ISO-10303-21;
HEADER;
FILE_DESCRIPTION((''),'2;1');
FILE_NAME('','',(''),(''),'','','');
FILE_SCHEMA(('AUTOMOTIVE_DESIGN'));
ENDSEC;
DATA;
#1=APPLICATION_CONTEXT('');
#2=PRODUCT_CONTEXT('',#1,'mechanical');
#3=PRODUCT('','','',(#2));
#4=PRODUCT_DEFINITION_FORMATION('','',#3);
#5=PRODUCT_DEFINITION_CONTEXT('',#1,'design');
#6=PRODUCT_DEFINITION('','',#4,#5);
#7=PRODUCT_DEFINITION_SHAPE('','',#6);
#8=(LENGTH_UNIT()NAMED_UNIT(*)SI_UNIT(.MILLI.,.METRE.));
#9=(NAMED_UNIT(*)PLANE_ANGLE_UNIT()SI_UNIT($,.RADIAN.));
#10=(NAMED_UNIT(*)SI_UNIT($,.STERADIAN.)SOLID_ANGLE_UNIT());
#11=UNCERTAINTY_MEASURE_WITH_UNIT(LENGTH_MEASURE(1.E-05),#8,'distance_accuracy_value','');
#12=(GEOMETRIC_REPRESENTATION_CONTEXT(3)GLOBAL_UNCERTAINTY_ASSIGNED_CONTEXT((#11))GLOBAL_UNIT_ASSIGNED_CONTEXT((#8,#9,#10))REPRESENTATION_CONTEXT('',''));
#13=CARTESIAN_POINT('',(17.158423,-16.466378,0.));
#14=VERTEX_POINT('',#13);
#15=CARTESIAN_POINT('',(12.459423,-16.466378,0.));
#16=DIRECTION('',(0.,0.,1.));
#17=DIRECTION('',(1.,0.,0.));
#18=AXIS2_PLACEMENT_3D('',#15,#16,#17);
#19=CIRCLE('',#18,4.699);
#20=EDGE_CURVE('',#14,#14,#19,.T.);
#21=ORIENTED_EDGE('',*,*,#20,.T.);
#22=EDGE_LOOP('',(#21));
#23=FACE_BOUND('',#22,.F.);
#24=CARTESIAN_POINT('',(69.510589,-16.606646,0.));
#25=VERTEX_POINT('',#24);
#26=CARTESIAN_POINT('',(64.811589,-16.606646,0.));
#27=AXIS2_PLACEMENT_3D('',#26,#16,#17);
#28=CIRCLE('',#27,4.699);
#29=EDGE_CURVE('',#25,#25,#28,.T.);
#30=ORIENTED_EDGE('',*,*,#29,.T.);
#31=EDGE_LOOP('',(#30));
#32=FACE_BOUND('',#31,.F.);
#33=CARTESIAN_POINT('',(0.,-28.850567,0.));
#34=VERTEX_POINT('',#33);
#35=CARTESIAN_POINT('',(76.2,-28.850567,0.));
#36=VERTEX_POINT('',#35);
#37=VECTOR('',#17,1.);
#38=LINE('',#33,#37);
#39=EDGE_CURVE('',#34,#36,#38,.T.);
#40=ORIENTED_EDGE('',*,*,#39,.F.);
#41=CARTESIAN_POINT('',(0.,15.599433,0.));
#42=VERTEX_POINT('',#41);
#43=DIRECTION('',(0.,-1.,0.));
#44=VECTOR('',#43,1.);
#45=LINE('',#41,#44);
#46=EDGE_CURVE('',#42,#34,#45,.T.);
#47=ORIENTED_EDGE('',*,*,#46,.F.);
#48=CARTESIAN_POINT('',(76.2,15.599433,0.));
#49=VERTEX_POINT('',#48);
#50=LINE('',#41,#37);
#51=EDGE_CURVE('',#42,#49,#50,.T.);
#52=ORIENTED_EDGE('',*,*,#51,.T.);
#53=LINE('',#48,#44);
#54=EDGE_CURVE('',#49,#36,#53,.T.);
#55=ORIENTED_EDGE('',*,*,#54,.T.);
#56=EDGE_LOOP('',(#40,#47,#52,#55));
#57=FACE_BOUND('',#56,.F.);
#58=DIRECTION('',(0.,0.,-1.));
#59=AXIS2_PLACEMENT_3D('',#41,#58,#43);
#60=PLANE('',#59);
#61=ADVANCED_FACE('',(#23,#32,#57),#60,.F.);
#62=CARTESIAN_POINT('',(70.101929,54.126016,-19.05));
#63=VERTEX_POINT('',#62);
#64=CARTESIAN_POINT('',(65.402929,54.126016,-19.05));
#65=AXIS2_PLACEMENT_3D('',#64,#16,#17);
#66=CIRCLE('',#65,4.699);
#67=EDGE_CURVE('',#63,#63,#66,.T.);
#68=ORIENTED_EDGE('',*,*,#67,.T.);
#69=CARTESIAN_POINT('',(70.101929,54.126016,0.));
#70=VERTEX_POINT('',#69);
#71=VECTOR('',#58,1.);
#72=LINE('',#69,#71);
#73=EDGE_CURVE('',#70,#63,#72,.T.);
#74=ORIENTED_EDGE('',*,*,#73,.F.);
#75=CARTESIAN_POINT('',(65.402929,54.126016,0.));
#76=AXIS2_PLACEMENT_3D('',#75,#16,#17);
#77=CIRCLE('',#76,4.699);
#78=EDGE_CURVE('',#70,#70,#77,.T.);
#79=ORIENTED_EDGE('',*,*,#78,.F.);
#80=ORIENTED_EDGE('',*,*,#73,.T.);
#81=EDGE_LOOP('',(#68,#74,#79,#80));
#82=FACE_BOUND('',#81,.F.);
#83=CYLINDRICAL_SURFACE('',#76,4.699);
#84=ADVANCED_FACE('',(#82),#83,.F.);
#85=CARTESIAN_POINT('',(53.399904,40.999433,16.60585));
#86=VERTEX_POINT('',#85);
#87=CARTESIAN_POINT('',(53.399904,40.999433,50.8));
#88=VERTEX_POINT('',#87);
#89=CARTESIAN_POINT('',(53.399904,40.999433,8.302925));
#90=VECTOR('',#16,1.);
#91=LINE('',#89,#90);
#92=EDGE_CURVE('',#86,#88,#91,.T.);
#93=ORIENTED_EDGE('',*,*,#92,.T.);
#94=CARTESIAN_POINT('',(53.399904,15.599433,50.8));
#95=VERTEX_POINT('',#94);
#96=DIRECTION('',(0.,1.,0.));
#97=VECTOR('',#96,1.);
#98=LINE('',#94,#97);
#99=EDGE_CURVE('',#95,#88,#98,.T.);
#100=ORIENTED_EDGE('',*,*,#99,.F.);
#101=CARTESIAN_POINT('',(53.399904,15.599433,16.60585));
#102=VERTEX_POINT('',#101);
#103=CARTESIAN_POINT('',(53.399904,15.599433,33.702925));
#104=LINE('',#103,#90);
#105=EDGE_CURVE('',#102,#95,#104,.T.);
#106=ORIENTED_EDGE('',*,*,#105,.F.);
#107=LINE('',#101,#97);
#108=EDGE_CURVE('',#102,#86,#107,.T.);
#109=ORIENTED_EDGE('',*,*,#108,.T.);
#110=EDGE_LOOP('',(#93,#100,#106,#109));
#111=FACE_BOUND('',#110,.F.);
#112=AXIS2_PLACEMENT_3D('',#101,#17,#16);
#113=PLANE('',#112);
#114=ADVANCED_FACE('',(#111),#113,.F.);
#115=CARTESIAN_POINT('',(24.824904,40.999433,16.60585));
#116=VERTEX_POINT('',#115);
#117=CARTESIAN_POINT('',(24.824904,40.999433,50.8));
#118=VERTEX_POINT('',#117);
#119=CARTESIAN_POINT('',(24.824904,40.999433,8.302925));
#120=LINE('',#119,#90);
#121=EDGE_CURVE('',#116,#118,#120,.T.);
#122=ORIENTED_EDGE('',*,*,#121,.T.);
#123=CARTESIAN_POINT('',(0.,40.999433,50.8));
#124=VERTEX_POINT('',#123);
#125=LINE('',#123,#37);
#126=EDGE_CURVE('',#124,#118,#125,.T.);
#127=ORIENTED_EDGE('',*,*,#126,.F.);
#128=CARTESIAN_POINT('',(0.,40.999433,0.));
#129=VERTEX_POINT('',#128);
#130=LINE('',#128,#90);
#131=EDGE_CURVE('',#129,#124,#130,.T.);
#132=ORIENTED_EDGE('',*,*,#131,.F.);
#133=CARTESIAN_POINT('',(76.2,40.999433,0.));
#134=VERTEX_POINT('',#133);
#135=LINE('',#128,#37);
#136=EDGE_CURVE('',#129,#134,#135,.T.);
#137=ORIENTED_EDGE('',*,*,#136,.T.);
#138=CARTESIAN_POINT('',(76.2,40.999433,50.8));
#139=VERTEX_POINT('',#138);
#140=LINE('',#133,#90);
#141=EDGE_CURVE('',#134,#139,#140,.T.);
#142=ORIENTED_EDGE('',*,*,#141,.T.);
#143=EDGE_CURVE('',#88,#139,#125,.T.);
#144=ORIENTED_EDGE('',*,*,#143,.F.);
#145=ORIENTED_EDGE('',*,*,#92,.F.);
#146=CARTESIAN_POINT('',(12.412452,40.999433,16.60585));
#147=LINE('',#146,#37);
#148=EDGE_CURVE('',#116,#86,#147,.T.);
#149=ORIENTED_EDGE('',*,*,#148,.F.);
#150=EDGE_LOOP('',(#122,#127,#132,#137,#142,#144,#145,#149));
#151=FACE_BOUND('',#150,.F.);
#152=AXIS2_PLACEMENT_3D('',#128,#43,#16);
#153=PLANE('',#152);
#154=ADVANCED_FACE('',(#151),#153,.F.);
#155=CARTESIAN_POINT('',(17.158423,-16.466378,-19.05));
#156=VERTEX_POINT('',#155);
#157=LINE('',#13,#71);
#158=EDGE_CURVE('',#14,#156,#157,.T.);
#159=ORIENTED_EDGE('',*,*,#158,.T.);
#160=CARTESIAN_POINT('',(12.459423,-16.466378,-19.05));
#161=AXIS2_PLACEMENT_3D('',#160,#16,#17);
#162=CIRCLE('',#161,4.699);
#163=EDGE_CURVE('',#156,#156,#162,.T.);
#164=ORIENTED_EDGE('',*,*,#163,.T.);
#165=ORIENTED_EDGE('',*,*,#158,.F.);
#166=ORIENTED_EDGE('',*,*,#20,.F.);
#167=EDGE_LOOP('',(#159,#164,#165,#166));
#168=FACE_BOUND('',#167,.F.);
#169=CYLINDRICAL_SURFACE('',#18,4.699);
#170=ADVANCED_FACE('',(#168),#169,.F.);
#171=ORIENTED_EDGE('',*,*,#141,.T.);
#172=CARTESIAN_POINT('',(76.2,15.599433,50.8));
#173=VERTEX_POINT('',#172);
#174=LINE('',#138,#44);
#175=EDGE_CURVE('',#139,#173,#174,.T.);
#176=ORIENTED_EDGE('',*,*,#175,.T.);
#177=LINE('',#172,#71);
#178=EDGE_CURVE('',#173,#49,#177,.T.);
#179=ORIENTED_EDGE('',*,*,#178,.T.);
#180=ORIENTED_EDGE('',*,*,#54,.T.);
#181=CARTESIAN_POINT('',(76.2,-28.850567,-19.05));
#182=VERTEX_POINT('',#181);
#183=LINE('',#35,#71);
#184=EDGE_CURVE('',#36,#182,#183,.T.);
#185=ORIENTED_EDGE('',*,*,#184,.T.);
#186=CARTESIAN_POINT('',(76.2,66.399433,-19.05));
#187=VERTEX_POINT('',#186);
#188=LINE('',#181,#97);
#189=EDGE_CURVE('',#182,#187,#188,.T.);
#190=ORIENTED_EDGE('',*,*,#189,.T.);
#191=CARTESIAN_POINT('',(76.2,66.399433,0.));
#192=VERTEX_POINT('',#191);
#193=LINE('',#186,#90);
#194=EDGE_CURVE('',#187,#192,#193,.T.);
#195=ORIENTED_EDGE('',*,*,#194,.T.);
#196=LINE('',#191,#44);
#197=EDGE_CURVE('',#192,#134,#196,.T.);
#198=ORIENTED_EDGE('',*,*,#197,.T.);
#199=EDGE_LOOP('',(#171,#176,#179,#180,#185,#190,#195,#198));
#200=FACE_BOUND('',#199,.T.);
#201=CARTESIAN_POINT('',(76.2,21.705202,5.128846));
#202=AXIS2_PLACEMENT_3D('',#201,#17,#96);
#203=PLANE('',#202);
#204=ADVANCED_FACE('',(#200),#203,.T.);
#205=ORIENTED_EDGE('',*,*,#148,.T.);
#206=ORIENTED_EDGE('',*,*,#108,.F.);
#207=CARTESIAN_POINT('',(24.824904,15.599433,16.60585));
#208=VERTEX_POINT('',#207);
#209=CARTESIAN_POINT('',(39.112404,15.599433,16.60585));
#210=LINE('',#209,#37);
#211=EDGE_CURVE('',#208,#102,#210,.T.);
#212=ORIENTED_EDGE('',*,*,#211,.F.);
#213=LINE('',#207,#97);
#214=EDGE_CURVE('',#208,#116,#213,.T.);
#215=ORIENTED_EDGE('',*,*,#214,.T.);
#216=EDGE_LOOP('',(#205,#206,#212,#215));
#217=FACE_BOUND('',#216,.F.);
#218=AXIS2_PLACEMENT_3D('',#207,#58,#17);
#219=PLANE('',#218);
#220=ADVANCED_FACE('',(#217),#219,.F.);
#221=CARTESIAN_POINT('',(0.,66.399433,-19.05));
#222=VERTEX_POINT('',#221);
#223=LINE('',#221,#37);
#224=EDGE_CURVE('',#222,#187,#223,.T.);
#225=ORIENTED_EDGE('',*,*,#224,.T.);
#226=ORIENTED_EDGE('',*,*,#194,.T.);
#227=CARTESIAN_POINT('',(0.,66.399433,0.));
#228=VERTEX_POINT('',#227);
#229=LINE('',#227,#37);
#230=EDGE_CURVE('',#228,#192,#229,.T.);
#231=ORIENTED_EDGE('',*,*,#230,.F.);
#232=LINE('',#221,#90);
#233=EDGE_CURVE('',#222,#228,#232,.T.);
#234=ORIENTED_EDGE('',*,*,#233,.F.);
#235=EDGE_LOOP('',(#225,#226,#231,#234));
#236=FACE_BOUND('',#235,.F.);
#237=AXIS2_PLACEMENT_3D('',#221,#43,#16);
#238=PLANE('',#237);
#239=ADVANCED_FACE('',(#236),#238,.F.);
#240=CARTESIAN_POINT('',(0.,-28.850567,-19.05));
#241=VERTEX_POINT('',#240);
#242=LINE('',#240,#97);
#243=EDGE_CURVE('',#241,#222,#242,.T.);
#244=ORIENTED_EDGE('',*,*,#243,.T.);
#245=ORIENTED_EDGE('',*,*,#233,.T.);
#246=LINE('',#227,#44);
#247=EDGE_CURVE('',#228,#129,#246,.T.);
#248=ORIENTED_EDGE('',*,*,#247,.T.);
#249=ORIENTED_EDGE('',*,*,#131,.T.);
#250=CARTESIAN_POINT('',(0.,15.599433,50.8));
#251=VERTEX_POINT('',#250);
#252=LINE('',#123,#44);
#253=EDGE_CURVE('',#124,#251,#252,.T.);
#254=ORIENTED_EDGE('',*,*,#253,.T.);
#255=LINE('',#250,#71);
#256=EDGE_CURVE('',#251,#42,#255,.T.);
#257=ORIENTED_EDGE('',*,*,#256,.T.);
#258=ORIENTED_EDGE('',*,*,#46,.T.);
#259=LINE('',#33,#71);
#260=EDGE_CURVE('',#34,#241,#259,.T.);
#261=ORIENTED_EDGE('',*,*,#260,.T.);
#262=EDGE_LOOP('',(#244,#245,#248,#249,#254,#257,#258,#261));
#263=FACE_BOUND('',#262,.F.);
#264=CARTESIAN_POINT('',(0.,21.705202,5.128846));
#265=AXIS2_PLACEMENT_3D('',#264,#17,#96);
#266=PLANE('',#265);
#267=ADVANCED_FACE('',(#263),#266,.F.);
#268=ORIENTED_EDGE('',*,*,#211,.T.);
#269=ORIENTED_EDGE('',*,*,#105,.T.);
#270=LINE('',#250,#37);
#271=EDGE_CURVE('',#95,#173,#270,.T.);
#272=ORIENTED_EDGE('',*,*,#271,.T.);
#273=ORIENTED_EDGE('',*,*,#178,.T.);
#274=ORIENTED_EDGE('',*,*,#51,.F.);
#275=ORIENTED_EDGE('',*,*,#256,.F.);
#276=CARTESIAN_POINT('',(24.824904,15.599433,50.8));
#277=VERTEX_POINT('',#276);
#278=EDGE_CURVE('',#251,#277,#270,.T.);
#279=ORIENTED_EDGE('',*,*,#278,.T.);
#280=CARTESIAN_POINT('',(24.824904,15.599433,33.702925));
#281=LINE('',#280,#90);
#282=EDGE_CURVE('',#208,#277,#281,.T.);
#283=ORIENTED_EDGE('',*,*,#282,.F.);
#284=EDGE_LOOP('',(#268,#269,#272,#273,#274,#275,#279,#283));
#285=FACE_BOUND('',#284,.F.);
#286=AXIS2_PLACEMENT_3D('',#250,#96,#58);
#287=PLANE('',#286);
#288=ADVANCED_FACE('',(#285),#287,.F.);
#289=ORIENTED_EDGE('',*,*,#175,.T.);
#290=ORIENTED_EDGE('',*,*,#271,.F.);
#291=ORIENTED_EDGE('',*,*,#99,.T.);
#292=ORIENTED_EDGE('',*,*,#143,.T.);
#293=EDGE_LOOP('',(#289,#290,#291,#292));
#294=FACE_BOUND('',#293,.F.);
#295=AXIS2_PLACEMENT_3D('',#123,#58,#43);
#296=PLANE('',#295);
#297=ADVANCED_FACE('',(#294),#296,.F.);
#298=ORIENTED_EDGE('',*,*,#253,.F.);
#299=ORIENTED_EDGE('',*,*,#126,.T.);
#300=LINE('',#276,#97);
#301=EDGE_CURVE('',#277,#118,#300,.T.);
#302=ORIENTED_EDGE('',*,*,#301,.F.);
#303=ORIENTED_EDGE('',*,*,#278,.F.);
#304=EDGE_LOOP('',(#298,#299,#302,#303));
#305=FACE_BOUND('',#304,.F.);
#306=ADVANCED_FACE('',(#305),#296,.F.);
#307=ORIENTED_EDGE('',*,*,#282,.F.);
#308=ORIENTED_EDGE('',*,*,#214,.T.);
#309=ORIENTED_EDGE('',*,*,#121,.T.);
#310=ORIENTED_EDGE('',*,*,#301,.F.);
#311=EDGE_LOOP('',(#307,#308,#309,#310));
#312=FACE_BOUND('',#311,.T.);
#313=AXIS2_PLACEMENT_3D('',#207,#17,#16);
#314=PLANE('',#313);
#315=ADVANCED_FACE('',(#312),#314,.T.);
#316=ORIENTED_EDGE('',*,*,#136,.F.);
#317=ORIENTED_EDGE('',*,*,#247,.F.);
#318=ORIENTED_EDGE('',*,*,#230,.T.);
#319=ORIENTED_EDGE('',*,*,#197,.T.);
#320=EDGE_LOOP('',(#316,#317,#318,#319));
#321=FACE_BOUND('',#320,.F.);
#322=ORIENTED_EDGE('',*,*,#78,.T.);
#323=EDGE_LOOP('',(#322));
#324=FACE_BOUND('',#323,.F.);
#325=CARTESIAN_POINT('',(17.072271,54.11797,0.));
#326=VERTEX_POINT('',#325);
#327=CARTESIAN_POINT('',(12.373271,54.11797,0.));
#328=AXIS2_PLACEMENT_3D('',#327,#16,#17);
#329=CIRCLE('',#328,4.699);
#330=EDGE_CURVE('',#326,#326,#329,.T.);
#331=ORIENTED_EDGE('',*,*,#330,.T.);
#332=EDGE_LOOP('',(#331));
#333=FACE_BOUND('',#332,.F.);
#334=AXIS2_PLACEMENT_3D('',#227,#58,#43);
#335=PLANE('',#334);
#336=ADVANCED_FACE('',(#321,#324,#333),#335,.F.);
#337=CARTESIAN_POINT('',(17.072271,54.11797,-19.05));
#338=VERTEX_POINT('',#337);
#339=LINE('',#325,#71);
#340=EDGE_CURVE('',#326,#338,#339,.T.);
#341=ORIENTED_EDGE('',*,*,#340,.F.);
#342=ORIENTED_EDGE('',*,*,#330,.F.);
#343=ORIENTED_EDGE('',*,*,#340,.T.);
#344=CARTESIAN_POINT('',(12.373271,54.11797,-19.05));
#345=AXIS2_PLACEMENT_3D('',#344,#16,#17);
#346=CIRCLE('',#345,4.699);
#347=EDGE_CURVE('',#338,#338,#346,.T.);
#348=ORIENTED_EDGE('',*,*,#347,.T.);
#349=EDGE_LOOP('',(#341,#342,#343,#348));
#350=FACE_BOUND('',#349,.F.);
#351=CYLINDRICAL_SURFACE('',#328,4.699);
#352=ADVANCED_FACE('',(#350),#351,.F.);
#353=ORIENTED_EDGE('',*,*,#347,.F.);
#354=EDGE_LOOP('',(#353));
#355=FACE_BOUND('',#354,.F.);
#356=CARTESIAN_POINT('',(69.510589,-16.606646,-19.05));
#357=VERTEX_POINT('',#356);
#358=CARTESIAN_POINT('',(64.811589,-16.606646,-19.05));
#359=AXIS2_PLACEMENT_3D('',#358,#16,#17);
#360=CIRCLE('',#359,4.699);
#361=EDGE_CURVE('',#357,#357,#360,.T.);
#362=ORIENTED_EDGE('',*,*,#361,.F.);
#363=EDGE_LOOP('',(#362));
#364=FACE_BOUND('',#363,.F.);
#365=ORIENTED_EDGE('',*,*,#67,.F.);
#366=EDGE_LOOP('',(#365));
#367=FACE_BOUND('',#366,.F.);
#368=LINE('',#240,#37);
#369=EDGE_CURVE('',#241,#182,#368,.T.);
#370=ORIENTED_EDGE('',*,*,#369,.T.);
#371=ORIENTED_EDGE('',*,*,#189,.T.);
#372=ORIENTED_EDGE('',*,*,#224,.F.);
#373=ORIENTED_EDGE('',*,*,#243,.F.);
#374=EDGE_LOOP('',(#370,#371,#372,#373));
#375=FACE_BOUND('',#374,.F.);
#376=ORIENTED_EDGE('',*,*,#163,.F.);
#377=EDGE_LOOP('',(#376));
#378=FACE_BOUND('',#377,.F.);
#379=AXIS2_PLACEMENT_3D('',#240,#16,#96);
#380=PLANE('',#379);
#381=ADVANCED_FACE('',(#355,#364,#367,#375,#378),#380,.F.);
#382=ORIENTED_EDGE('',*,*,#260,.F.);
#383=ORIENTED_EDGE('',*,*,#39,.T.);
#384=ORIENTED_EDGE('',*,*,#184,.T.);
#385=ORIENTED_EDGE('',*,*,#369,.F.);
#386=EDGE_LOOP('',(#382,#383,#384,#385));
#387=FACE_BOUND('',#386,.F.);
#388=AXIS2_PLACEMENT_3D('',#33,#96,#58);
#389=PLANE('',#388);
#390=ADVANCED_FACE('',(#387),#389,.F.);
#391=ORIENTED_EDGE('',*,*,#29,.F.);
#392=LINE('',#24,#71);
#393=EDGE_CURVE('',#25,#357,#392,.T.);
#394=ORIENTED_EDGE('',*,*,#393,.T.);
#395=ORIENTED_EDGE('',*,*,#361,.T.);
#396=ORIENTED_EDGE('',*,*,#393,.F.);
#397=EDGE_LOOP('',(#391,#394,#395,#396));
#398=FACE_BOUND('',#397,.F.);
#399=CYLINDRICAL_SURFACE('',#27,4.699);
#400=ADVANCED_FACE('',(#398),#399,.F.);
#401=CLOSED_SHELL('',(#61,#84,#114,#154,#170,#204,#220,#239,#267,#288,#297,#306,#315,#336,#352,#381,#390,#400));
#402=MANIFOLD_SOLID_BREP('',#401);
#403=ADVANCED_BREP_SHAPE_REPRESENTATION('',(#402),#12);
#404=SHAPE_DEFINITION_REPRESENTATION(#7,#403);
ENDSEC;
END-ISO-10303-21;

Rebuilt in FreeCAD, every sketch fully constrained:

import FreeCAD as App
import Part
import Sketcher

V = App.Vector
Q = App.Units.Quantity


def add_polygon(sketch, points):
    """Adds a closed chain of lines whose ends are joined by coincident constraints."""
    first, n = sketch.GeometryCount, len(points)
    for a, b in zip(points, points[1:] + points[:1]):
        sketch.addGeometry(Part.LineSegment(App.Vector(*a, 0), App.Vector(*b, 0)), False)
    for i in range(n):
        sketch.addConstraint(Sketcher.Constraint("Coincident", first + i, 2, first + (i + 1) % n, 1))

doc = App.newDocument("Part")
body = doc.addObject("PartDesign::Body", "Body")

# Sketch on YZ plane
sketch1 = body.newObject("Sketcher::SketchObject", "Sketch")
sketch1.AttachmentSupport = (doc.getObject("YZ_Plane"), [""])
sketch1.MapMode = "FlatFace"
add_polygon(sketch1, [(-29, 0), (-29, -19), (66, -19), (66, 0), (41, 0), (41, 51), (16, 51), (16, 0)])  # lines 0-7
sketch1.addConstraint(Sketcher.Constraint("Vertical", 0))
sketch1.addConstraint(Sketcher.Constraint("Horizontal", 1))
sketch1.addConstraint(Sketcher.Constraint("Vertical", 2))
sketch1.addConstraint(Sketcher.Constraint("Horizontal", 3))
sketch1.addConstraint(Sketcher.Constraint("Vertical", 4))
sketch1.addConstraint(Sketcher.Constraint("Horizontal", 5))
sketch1.addConstraint(Sketcher.Constraint("Vertical", 6))
sketch1.addConstraint(Sketcher.Constraint("Horizontal", 7))
sketch1.addConstraint(Sketcher.Constraint("PointOnObject", 2, 2, -1))
sketch1.addConstraint(Sketcher.Constraint("PointOnObject", 6, 2, -1))
sketch1.addConstraint(Sketcher.Constraint("Equal", 3, 5))
sketch1.addConstraint(Sketcher.Constraint("DistanceX", 3, 2, 3, 1, Q("1 in")))
sketch1.addConstraint(Sketcher.Constraint("DistanceY", 4, 1, 4, 2, Q("2 in")))
sketch1.addConstraint(Sketcher.Constraint("DistanceX", 1, 1, 1, 2, Q("3.75 in")))
sketch1.addConstraint(Sketcher.Constraint("DistanceY", 0, 2, 0, 1, Q("0.75 in")))
sketch1.addConstraint(Sketcher.Constraint("DistanceX", 0, 2, -1, 1, Q("28.850567 mm")))
pad1 = body.newObject("PartDesign::Pad", "Pad")
pad1.Profile = sketch1
pad1.Length = Q("3 in")

# Sketch on XZ plane
sketch2 = body.newObject("Sketcher::SketchObject", "Sketch001")
sketch2.AttachmentSupport = (doc.getObject("XZ_Plane"), [""])
sketch2.MapMode = "FlatFace"
sketch2.AttachmentOffset = App.Placement(V(0, 0, -15.599433), App.Rotation())
add_polygon(sketch2, [(25, 51), (25, 17), (53, 17), (53, 51)])  # lines 0-3
sketch2.addConstraint(Sketcher.Constraint("Vertical", 0))
sketch2.addConstraint(Sketcher.Constraint("Horizontal", 1))
sketch2.addConstraint(Sketcher.Constraint("Vertical", 2))
sketch2.addConstraint(Sketcher.Constraint("Horizontal", 3))
sketch2.addConstraint(Sketcher.Constraint("DistanceY", -1, 1, 2, 2, Q("2 in")))
sketch2.addConstraint(Sketcher.Constraint("DistanceX", 1, 1, 1, 2, Q("1.125 in")))
sketch2.addConstraint(Sketcher.Constraint("DistanceY", 0, 2, 0, 1, Q("34.19415 mm")))
sketch2.addConstraint(Sketcher.Constraint("DistanceX", -1, 1, 0, 2, Q("24.824904 mm")))
pocket1 = body.newObject("PartDesign::Pocket", "Pocket")
pocket1.Profile = sketch2
pocket1.Length = Q("1.33 in")

# Sketch on XY plane
sketch3 = body.newObject("Sketcher::SketchObject", "Sketch002")
sketch3.AttachmentSupport = (doc.getObject("XY_Plane"), [""])
sketch3.MapMode = "FlatFace"
sketch3.addGeometry(Part.Circle(V(12.4, 54.1, 0), V(0, 0, 1), 4.7), False)
sketch3.addGeometry(Part.Circle(V(65.4, 54.1, 0), V(0, 0, 1), 4.7), False)
sketch3.addGeometry(Part.Circle(V(12.5, -16.5, 0), V(0, 0, 1), 4.7), False)
sketch3.addGeometry(Part.Circle(V(64.8, -16.6, 0), V(0, 0, 1), 4.7), False)
sketch3.addConstraint(Sketcher.Constraint("Equal", 0, 1))
sketch3.addConstraint(Sketcher.Constraint("Equal", 1, 2))
sketch3.addConstraint(Sketcher.Constraint("Equal", 2, 3))
sketch3.addConstraint(Sketcher.Constraint("Diameter", 0, Q("0.37 in")))
sketch3.addConstraint(Sketcher.Constraint("DistanceX", -1, 1, 0, 3, Q("12.373271 mm")))
sketch3.addConstraint(Sketcher.Constraint("DistanceY", -1, 1, 0, 3, Q("54.11797 mm")))
sketch3.addConstraint(Sketcher.Constraint("DistanceX", -1, 1, 1, 3, Q("65.402929 mm")))
sketch3.addConstraint(Sketcher.Constraint("DistanceX", -1, 1, 3, 3, Q("64.811589 mm")))
sketch3.addConstraint(Sketcher.Constraint("DistanceX", 0, 3, 2, 3, Q("0.086152 mm")))
sketch3.addConstraint(Sketcher.Constraint("DistanceY", 2, 3, 0, 3, Q("70.584348 mm")))
sketch3.addConstraint(Sketcher.Constraint("DistanceY", 3, 3, 2, 3, Q("0.140268 mm")))
sketch3.addConstraint(Sketcher.Constraint("DistanceY", -1, 1, 1, 3, Q("54.126016 mm")))
pocket2 = body.newObject("PartDesign::Pocket", "Pocket001")
pocket2.Profile = sketch3
pocket2.Length = Q("2.11 in")

doc.recompute()
